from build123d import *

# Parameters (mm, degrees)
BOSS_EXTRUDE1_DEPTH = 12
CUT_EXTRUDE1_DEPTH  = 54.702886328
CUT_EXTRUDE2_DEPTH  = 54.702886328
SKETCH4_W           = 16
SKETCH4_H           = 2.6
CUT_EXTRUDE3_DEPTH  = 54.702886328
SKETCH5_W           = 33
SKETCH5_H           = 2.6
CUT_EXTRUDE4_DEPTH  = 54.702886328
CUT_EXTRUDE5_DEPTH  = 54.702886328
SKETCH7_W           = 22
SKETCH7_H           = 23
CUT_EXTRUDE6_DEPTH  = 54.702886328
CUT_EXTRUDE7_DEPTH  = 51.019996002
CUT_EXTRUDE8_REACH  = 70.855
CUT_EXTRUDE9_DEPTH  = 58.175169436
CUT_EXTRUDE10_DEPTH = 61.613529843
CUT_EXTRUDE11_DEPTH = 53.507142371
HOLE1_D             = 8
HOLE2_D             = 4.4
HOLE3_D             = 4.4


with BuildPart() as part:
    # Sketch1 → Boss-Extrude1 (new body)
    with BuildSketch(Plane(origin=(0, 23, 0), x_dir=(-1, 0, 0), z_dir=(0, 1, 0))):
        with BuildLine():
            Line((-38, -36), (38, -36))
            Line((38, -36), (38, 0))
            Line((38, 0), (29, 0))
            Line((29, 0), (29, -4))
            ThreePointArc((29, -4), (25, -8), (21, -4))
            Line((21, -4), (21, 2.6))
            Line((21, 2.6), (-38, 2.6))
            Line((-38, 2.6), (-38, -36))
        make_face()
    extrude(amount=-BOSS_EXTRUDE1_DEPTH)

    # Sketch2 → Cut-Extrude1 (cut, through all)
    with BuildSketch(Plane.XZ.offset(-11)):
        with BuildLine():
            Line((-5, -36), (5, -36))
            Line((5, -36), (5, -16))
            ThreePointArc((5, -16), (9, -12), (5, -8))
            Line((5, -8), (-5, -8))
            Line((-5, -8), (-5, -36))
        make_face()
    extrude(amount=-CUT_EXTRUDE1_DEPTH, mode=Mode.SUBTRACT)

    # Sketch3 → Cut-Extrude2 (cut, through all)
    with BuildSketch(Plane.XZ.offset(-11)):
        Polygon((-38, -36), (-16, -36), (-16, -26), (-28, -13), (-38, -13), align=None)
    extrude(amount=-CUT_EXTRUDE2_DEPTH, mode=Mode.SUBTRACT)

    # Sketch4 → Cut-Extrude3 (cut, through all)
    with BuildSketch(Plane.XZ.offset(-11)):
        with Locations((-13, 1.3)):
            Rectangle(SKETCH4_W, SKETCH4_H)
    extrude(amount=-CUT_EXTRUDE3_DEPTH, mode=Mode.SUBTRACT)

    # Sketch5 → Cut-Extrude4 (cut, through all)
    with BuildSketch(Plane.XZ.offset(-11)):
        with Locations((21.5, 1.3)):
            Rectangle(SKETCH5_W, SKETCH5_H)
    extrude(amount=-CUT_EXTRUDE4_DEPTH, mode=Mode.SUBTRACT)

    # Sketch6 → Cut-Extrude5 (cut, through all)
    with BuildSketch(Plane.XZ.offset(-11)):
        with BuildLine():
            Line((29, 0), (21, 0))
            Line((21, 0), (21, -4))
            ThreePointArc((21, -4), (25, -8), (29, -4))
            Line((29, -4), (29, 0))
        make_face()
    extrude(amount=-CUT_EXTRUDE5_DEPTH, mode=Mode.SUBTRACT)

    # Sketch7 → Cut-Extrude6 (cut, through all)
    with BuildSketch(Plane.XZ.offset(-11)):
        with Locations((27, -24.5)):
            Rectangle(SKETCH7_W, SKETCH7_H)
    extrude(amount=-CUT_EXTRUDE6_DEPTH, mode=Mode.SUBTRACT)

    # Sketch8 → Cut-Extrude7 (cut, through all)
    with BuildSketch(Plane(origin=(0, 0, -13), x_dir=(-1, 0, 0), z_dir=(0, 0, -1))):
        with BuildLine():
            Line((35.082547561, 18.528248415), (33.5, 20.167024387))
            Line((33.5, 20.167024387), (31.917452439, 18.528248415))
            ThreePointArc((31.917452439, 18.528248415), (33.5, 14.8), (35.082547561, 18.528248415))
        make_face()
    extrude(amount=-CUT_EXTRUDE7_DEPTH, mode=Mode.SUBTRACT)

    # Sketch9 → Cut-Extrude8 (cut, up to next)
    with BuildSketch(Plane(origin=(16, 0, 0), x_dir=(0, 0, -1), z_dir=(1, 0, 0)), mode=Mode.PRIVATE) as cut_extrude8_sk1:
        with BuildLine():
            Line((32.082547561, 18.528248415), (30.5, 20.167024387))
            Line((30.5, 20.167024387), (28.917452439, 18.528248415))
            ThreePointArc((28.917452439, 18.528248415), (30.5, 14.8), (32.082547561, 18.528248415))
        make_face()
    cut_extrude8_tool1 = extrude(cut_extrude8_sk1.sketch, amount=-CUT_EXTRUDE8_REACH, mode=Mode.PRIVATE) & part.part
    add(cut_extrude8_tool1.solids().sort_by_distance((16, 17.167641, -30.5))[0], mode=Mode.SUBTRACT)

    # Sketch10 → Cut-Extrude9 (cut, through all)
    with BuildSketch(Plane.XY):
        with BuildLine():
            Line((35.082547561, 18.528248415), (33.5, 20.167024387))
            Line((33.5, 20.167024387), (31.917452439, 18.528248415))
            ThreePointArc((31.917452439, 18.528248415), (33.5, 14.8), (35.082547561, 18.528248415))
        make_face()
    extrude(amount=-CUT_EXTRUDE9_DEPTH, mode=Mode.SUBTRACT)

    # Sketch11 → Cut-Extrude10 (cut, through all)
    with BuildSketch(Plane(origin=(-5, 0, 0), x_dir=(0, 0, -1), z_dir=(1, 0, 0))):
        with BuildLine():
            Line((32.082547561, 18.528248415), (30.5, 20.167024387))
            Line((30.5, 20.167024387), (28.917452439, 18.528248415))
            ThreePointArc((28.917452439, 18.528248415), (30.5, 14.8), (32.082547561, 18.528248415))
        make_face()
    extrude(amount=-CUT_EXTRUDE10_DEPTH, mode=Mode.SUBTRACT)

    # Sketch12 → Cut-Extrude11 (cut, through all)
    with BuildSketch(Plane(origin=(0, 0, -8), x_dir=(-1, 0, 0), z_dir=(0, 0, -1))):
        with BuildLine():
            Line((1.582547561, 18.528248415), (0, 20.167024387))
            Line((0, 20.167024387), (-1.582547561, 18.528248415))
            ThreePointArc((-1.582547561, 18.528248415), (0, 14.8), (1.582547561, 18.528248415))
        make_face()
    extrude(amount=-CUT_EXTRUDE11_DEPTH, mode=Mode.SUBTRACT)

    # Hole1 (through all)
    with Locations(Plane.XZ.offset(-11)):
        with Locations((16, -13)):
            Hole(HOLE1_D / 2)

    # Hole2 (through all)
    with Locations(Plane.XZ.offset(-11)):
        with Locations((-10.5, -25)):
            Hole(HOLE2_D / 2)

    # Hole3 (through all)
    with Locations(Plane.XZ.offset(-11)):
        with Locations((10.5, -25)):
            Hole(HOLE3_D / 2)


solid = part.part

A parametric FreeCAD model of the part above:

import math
import FreeCAD as App
import Part
import Sketcher

V = App.Vector
Q = App.Units.Quantity


def add_polygon(sketch, points):
    """Adds a closed chain of lines whose ends are joined by coincident constraints."""
    first, n = sketch.GeometryCount, len(points)
    for a, b in zip(points, points[1:] + points[:1]):
        sketch.addGeometry(Part.LineSegment(App.Vector(*a, 0), App.Vector(*b, 0)), False)
    for i in range(n):
        sketch.addConstraint(Sketcher.Constraint("Coincident", first + i, 2, first + (i + 1) % n, 1))

doc = App.newDocument("Part")
params = doc.addObject("Spreadsheet::Sheet", "Params")
for row, (alias, value) in enumerate([
    ("sketch1_radius", "4 mm"),
    ("sketch1_width", "76 mm"),
    ("sketch1_width2", "9 mm"),
    ("sketch1_height", "36 mm"),
    ("sketch1_height2", "4 mm"),
    ("pad1_length", "12 mm"),
    ("sketch2_radius", "4 mm"),
    ("sketch2_width", "10 mm"),
    ("sketch2_height", "20 mm"),
    ("sketch3_width", "22 mm"),
    ("sketch3_width2", "10 mm"),
    ("sketch3_height", "23 mm"),
    ("sketch4_width", "16 mm"),
    ("sketch4_height", "2.6 mm"),
    ("sketch5_width", "33 mm"),
    ("sketch5_height", "2.6 mm"),
    ("sketch6_radius", "4 mm"),
    ("sketch6_height", "4 mm"),
    ("sketch7_width", "22 mm"),
    ("sketch7_height", "23 mm"),
    ("sketch8_radius", "2.2 mm"),
    ("sketch9_radius", "2.2 mm"),
    ("sketch10_radius", "2.2 mm"),
    ("sketch11_radius", "2.2 mm"),
    ("sketch12_radius", "2.2 mm"),
    ("sketch13_diameter", "8 mm"),
    ("hole_diameter", "8 mm"),
    ("sketch14_diameter", "4.4 mm"),
    ("hole2_diameter", "4.4 mm"),
    ("sketch15_diameter", "4.4 mm"),
    ("hole3_diameter", "4.4 mm"),
], start=1):
    params.set(f"A{row}", alias)
    params.set(f"B{row}", "=" + value)
    params.setAlias(f"B{row}", alias)

body = doc.addObject("PartDesign::Body", "Body")

sketch1 = body.newObject("Sketcher::SketchObject", "Sketch")
sketch1.AttachmentSupport = (doc.getObject("XZ_Plane"), [""])
sketch1.MapMode = "FlatFace"
sketch1.AttachmentOffset = App.Placement(V(0, 0, -23), App.Rotation())
sketch1.addGeometry([
    Part.LineSegment(V(38, -36, 0), V(-38, -36, 0)),
    Part.LineSegment(V(-38, -36, 0), V(-38, 0, 0)),
    Part.LineSegment(V(-38, 0, 0), V(-29, 0, 0)),
    Part.LineSegment(V(-29, 0, 0), V(-29, -4, 0)),
    Part.ArcOfCircle(Part.Circle(V(-25, -4, 0), V(0, 0, 1), 4), math.radians(180), math.radians(360)),
    Part.LineSegment(V(-21, -4, 0), V(-21, 2.6, 0)),
    Part.LineSegment(V(-21, 2.6, 0), V(38, 2.6, 0)),
    Part.LineSegment(V(38, 2.6, 0), V(38, -36, 0)),
], False)
sketch1.addConstraint([
    Sketcher.Constraint("Coincident", 0, 2, 1, 1),
    Sketcher.Constraint("Coincident", 1, 2, 2, 1),
    Sketcher.Constraint("Coincident", 2, 2, 3, 1),
    Sketcher.Constraint("Tangent", 3, 2, 4, 1),
    Sketcher.Constraint("Tangent", 4, 2, 5, 1),
    Sketcher.Constraint("Coincident", 5, 2, 6, 1),
    Sketcher.Constraint("Coincident", 6, 2, 7, 1),
    Sketcher.Constraint("Coincident", 7, 2, 0, 1),
    Sketcher.Constraint("Horizontal", 0),
    Sketcher.Constraint("Vertical", 1),
    Sketcher.Constraint("Horizontal", 2),
    Sketcher.Constraint("Vertical", 3),
    Sketcher.Constraint("Vertical", 5),
    Sketcher.Constraint("Horizontal", 6),
    Sketcher.Constraint("Vertical", 7),
    Sketcher.Constraint("PointOnObject", 1, 2, -1),
    Sketcher.Constraint("Radius", 4, Q("4 mm")),
    Sketcher.Constraint("DistanceX", 0, 2, 0, 1, Q("76 mm")),
    Sketcher.Constraint("DistanceX", 2, 1, 2, 2, Q("9 mm")),
    Sketcher.Constraint("DistanceY", 1, 1, 1, 2, Q("36 mm")),
    Sketcher.Constraint("DistanceY", 3, 2, 3, 1, Q("4 mm")),
    Sketcher.Constraint("DistanceY", 5, 1, 5, 2, Q("6.6 mm")),
    Sketcher.Constraint("DistanceX", 4, 3, -1, 1, Q("25 mm")),
])
sketch1.setExpression("Constraints[16]", "Params.sketch1_radius")
sketch1.setExpression("Constraints[17]", "Params.sketch1_width")
sketch1.setExpression("Constraints[18]", "Params.sketch1_width2")
sketch1.setExpression("Constraints[19]", "Params.sketch1_height")
sketch1.setExpression("Constraints[20]", "Params.sketch1_height2")
pad1 = body.newObject("PartDesign::Pad", "Pad")
pad1.Profile = sketch1
pad1.setExpression("Length", "Params.pad1_length")

sketch2 = body.newObject("Sketcher::SketchObject", "Sketch001")
sketch2.AttachmentSupport = (doc.getObject("XZ_Plane"), [""])
sketch2.MapMode = "FlatFace"
sketch2.AttachmentOffset = App.Placement(V(0, 0, -11), App.Rotation())
sketch2.addGeometry([
    Part.LineSegment(V(-5, -36, 0), V(5, -36, 0)),
    Part.LineSegment(V(5, -36, 0), V(5, -16, 0)),
    Part.ArcOfCircle(Part.Circle(V(5, -12, 0), V(0, 0, 1), 4), math.radians(-90), math.radians(90)),
    Part.LineSegment(V(5, -8, 0), V(-5, -8, 0)),
    Part.LineSegment(V(-5, -8, 0), V(-5, -36, 0)),
], False)
sketch2.addConstraint([
    Sketcher.Constraint("Coincident", 0, 2, 1, 1),
    Sketcher.Constraint("Coincident", 1, 2, 2, 1),
    Sketcher.Constraint("Tangent", 2, 2, 3, 1),
    Sketcher.Constraint("Coincident", 3, 2, 4, 1),
    Sketcher.Constraint("Coincident", 4, 2, 0, 1),
    Sketcher.Constraint("Horizontal", 0),
    Sketcher.Constraint("Vertical", 1),
    Sketcher.Constraint("Horizontal", 3),
    Sketcher.Constraint("Vertical", 4),
    Sketcher.Constraint("Vertical", 2, 3, 0, 2),
    Sketcher.Constraint("Radius", 2, Q("4 mm")),
    Sketcher.Constraint("DistanceX", 0, 1, 0, 2, Q("10 mm")),
    Sketcher.Constraint("DistanceY", 1, 1, 1, 2, Q("20 mm")),
    Sketcher.Constraint("DistanceX", -1, 1, 2, 3, Q("5 mm")),
    Sketcher.Constraint("DistanceY", 2, 3, -1, 1, Q("12 mm")),
])
sketch2.setExpression("Constraints[10]", "Params.sketch2_radius")
sketch2.setExpression("Constraints[11]", "Params.sketch2_width")
sketch2.setExpression("Constraints[12]", "Params.sketch2_height")
pocket1 = body.newObject("PartDesign::Pocket", "Pocket")
pocket1.Profile = sketch2
pocket1.Type = "ThroughAll"

sketch3 = body.newObject("Sketcher::SketchObject", "Sketch002")
sketch3.AttachmentSupport = (doc.getObject("XZ_Plane"), [""])
sketch3.MapMode = "FlatFace"
sketch3.AttachmentOffset = App.Placement(V(0, 0, -11), App.Rotation())
add_polygon(sketch3, [(-38, -36), (-16, -36), (-16, -26), (-28, -13), (-38, -13)])
sketch3.addConstraint([
    Sketcher.Constraint("Horizontal", 0),
    Sketcher.Constraint("Vertical", 1),
    Sketcher.Constraint("Horizontal", 3),
    Sketcher.Constraint("Vertical", 4),
    Sketcher.Constraint("Equal", 3, 1),
    Sketcher.Constraint("DistanceX", 0, 1, 0, 2, Q("22 mm")),
    Sketcher.Constraint("DistanceX", 3, 2, 3, 1, Q("10 mm")),
    Sketcher.Constraint("DistanceY", 4, 2, 4, 1, Q("23 mm")),
    Sketcher.Constraint("DistanceX", 0, 2, -1, 1, Q("16 mm")),
    Sketcher.Constraint("DistanceY", 0, 2, -1, 1, Q("36 mm")),
])
sketch3.setExpression("Constraints[10]", "Params.sketch3_width")
sketch3.setExpression("Constraints[11]", "Params.sketch3_width2")
sketch3.setExpression("Constraints[12]", "Params.sketch3_height")
pocket2 = body.newObject("PartDesign::Pocket", "Pocket001")
pocket2.Profile = sketch3
pocket2.Type = "ThroughAll"

sketch4 = body.newObject("Sketcher::SketchObject", "Sketch003")
sketch4.AttachmentSupport = (doc.getObject("XZ_Plane"), [""])
sketch4.MapMode = "FlatFace"
sketch4.AttachmentOffset = App.Placement(V(0, 0, -11), App.Rotation())
add_polygon(sketch4, [(-21, 2.6), (-21, 0), (-5, 0), (-5, 2.6)])
sketch4.addConstraint([
    Sketcher.Constraint("Vertical", 0),
    Sketcher.Constraint("Horizontal", 1),
    Sketcher.Constraint("Vertical", 2),
    Sketcher.Constraint("Horizontal", 3),
    Sketcher.Constraint("PointOnObject", 0, 2, -1),
    Sketcher.Constraint("DistanceX", 1, 1, 1, 2, Q("16 mm")),
    Sketcher.Constraint("DistanceY", 0, 2, 0, 1, Q("2.6 mm")),
    Sketcher.Constraint("DistanceX", 0, 2, -1, 1, Q("21 mm")),
])
sketch4.setExpression("Constraints[9]", "Params.sketch4_width")
sketch4.setExpression("Constraints[10]", "Params.sketch4_height")
pocket3 = body.newObject("PartDesign::Pocket", "Pocket002")
pocket3.Profile = sketch4
pocket3.Type = "ThroughAll"

sketch5 = body.newObject("Sketcher::SketchObject", "Sketch004")
sketch5.AttachmentSupport = (doc.getObject("XZ_Plane"), [""])
sketch5.MapMode = "FlatFace"
sketch5.AttachmentOffset = App.Placement(V(0, 0, -11), App.Rotation())
add_polygon(sketch5, [(5, 2.6), (5, 0), (38, 0), (38, 2.6)])
sketch5.addConstraint([
    Sketcher.Constraint("Vertical", 0),
    Sketcher.Constraint("Horizontal", 1),
    Sketcher.Constraint("Vertical", 2),
    Sketcher.Constraint("Horizontal", 3),
    Sketcher.Constraint("PointOnObject", 0, 2, -1),
    Sketcher.Constraint("DistanceX", 1, 1, 1, 2, Q("33 mm")),
    Sketcher.Constraint("DistanceY", 0, 2, 0, 1, Q("2.6 mm")),
    Sketcher.Constraint("DistanceX", -1, 1, 0, 2, Q("5 mm")),
])
sketch5.setExpression("Constraints[9]", "Params.sketch5_width")
sketch5.setExpression("Constraints[10]", "Params.sketch5_height")
pocket4 = body.newObject("PartDesign::Pocket", "Pocket003")
pocket4.Profile = sketch5
pocket4.Type = "ThroughAll"

sketch6 = body.newObject("Sketcher::SketchObject", "Sketch005")
sketch6.AttachmentSupport = (doc.getObject("XZ_Plane"), [""])
sketch6.MapMode = "FlatFace"
sketch6.AttachmentOffset = App.Placement(V(0, 0, -11), App.Rotation())
sketch6.addGeometry([
    Part.LineSegment(V(29, 0, 0), V(21, 0, 0)),
    Part.LineSegment(V(21, 0, 0), V(21, -4, 0)),
    Part.ArcOfCircle(Part.Circle(V(25, -4, 0), V(0, 0, 1), 4), math.radians(180), math.radians(360)),
    Part.LineSegment(V(29, -4, 0), V(29, 0, 0)),
], False)
sketch6.addConstraint([
    Sketcher.Constraint("Coincident", 0, 2, 1, 1),
    Sketcher.Constraint("Tangent", 1, 2, 2, 1),
    Sketcher.Constraint("Tangent", 2, 2, 3, 1),
    Sketcher.Constraint("Coincident", 3, 2, 0, 1),
    Sketcher.Constraint("Horizontal", 0),
    Sketcher.Constraint("Vertical", 1),
    Sketcher.Constraint("Vertical", 3),
    Sketcher.Constraint("PointOnObject", 0, 2, -1),
    Sketcher.Constraint("Radius", 2, Q("4 mm")),
    Sketcher.Constraint("DistanceY", 1, 2, 1, 1, Q("4 mm")),
    Sketcher.Constraint("DistanceX", -1, 1, 2, 3, Q("25 mm")),
])
sketch6.setExpression("Constraints[8]", "Params.sketch6_radius")
sketch6.setExpression("Constraints[9]", "Params.sketch6_height")
pocket5 = body.newObject("PartDesign::Pocket", "Pocket004")
pocket5.Profile = sketch6
pocket5.Type = "ThroughAll"

sketch7 = body.newObject("Sketcher::SketchObject", "Sketch006")
sketch7.AttachmentSupport = (doc.getObject("XZ_Plane"), [""])
sketch7.MapMode = "FlatFace"
sketch7.AttachmentOffset = App.Placement(V(0, 0, -11), App.Rotation())
add_polygon(sketch7, [(16, -13), (16, -36), (38, -36), (38, -13)])
sketch7.addConstraint([
    Sketcher.Constraint("Vertical", 0),
    Sketcher.Constraint("Horizontal", 1),
    Sketcher.Constraint("Vertical", 2),
    Sketcher.Constraint("Horizontal", 3),
    Sketcher.Constraint("DistanceX", 1, 1, 1, 2, Q("22 mm")),
    Sketcher.Constraint("DistanceY", 0, 2, 0, 1, Q("23 mm")),
    Sketcher.Constraint("DistanceX", -1, 1, 0, 2, Q("16 mm")),
    Sketcher.Constraint("DistanceY", 0, 2, -1, 1, Q("36 mm")),
])
sketch7.setExpression("Constraints[8]", "Params.sketch7_width")
sketch7.setExpression("Constraints[9]", "Params.sketch7_height")
pocket6 = body.newObject("PartDesign::Pocket", "Pocket005")
pocket6.Profile = sketch7
pocket6.Type = "ThroughAll"

sketch8 = body.newObject("Sketcher::SketchObject", "Sketch007")
sketch8.AttachmentSupport = (doc.getObject("XY_Plane"), [""])
sketch8.MapMode = "FlatFace"
sketch8.AttachmentOffset = App.Placement(V(0, 0, -13), App.Rotation())
sketch8.addGeometry([
    Part.LineSegment(V(-35.082548, 18.528248, 0), V(-33.5, 20.167024, 0)),
    Part.LineSegment(V(-33.5, 20.167024, 0), V(-31.917452, 18.528248, 0)),
    Part.ArcOfCircle(Part.Circle(V(-33.5, 17, 0), V(0, 0, 1), 2.2), math.radians(136), math.radians(404)),
], False)
sketch8.addConstraint([
    Sketcher.Constraint("Coincident", 0, 2, 1, 1),
    Sketcher.Constraint("Tangent", 1, 2, 2, 2),
    Sketcher.Constraint("Tangent", 2, 1, 0, 1),
    Sketcher.Constraint("Horizontal", 1, 2, 2, 1),
    Sketcher.Constraint("Radius", 2, Q("2.2 mm")),
    Sketcher.Constraint("Angle", 0, Q("46 deg")),
    Sketcher.Constraint("DistanceY", -1, 1, 2, 3, Q("17 mm")),
    Sketcher.Constraint("DistanceX", 2, 3, -1, 1, Q("33.5 mm")),
])
sketch8.setExpression("Constraints[4]", "Params.sketch8_radius")
pocket7 = body.newObject("PartDesign::Pocket", "Pocket006")
pocket7.Profile = sketch8
pocket7.Type = "ThroughAll"
pocket7.Reversed = True

sketch9 = body.newObject("Sketcher::SketchObject", "Sketch008")
sketch9.AttachmentSupport = (doc.getObject("YZ_Plane"), [""])
sketch9.MapMode = "FlatFace"
sketch9.AttachmentOffset = App.Placement(V(0, 0, 16), App.Rotation())
sketch9.addGeometry([
    Part.LineSegment(V(18.528248, -32.082548, 0), V(20.167024, -30.5, 0)),
    Part.LineSegment(V(20.167024, -30.5, 0), V(18.528248, -28.917452, 0)),
    Part.ArcOfCircle(Part.Circle(V(17, -30.5, 0), V(0, 0, 1), 2.2), math.radians(46), math.radians(314)),
], False)
sketch9.addConstraint([
    Sketcher.Constraint("Coincident", 0, 2, 1, 1),
    Sketcher.Constraint("Tangent", 1, 2, 2, 1),
    Sketcher.Constraint("Tangent", 2, 2, 0, 1),
    Sketcher.Constraint("Horizontal", 2, 3, 0, 2),
    Sketcher.Constraint("Radius", 2, Q("2.2 mm")),
    Sketcher.Constraint("Angle", 0, Q("44 deg")),
    Sketcher.Constraint("DistanceX", -1, 1, 2, 3, Q("17 mm")),
    Sketcher.Constraint("DistanceY", 2, 3, -1, 1, Q("30.5 mm")),
])
sketch9.setExpression("Constraints[4]", "Params.sketch9_radius")
pocket8 = body.newObject("PartDesign::Pocket", "Pocket007")
pocket8.Profile = sketch9
pocket8.Type = "UpToFirst"

sketch10 = body.newObject("Sketcher::SketchObject", "Sketch009")
sketch10.AttachmentSupport = (doc.getObject("XY_Plane"), [""])
sketch10.MapMode = "FlatFace"
sketch10.addGeometry([
    Part.LineSegment(V(35.082548, 18.528248, 0), V(33.5, 20.167024, 0)),
    Part.LineSegment(V(33.5, 20.167024, 0), V(31.917452, 18.528248, 0)),
    Part.ArcOfCircle(Part.Circle(V(33.5, 17, 0), V(0, 0, 1), 2.2), math.radians(136), math.radians(404)),
], False)
sketch10.addConstraint([
    Sketcher.Constraint("Coincident", 0, 2, 1, 1),
    Sketcher.Constraint("Tangent", 1, 2, 2, 1),
    Sketcher.Constraint("Tangent", 2, 2, 0, 1),
    Sketcher.Constraint("Horizontal", 1, 2, 2, 2),
    Sketcher.Constraint("Radius", 2, Q("2.2 mm")),
    Sketcher.Constraint("Angle", 0, Q("134 deg")),
    Sketcher.Constraint("DistanceY", -1, 1, 2, 3, Q("17 mm")),
    Sketcher.Constraint("DistanceX", -1, 1, 2, 3, Q("33.5 mm")),
])
sketch10.setExpression("Constraints[4]", "Params.sketch10_radius")
pocket9 = body.newObject("PartDesign::Pocket", "Pocket008")
pocket9.Profile = sketch10
pocket9.Type = "ThroughAll"

sketch11 = body.newObject("Sketcher::SketchObject", "Sketch010")
sketch11.AttachmentSupport = (doc.getObject("YZ_Plane"), [""])
sketch11.MapMode = "FlatFace"
sketch11.AttachmentOffset = App.Placement(V(0, 0, -5), App.Rotation())
sketch11.addGeometry([
    Part.LineSegment(V(18.528248, -32.082548, 0), V(20.167024, -30.5, 0)),
    Part.LineSegment(V(20.167024, -30.5, 0), V(18.528248, -28.917452, 0)),
    Part.ArcOfCircle(Part.Circle(V(17, -30.5, 0), V(0, 0, 1), 2.2), math.radians(46), math.radians(314)),
], False)
sketch11.addConstraint([
    Sketcher.Constraint("Coincident", 0, 2, 1, 1),
    Sketcher.Constraint("Tangent", 1, 2, 2, 1),
    Sketcher.Constraint("Tangent", 2, 2, 0, 1),
    Sketcher.Constraint("Horizontal", 2, 3, 0, 2),
    Sketcher.Constraint("Radius", 2, Q("2.2 mm")),
    Sketcher.Constraint("Angle", 0, Q("44 deg")),
    Sketcher.Constraint("DistanceX", -1, 1, 2, 3, Q("17 mm")),
    Sketcher.Constraint("DistanceY", 2, 3, -1, 1, Q("30.5 mm")),
])
sketch11.setExpression("Constraints[4]", "Params.sketch11_radius")
pocket10 = body.newObject("PartDesign::Pocket", "Pocket009")
pocket10.Profile = sketch11
pocket10.Type = "ThroughAll"

sketch12 = body.newObject("Sketcher::SketchObject", "Sketch011")
sketch12.AttachmentSupport = (doc.getObject("XY_Plane"), [""])
sketch12.MapMode = "FlatFace"
sketch12.AttachmentOffset = App.Placement(V(0, 0, -8), App.Rotation())
sketch12.addGeometry([
    Part.LineSegment(V(-1.582548, 18.528248, 0), V(0, 20.167024, 0)),
    Part.LineSegment(V(0, 20.167024, 0), V(1.582548, 18.528248, 0)),
    Part.ArcOfCircle(Part.Circle(V(0, 17, 0), V(0, 0, 1), 2.2), math.radians(136), math.radians(404)),
], False)
sketch12.addConstraint([
    Sketcher.Constraint("Coincident", 0, 2, 1, 1),
    Sketcher.Constraint("Tangent", 1, 2, 2, 2),
    Sketcher.Constraint("Tangent", 2, 1, 0, 1),
    Sketcher.Constraint("Symmetric", 1, 2, 2, 1, -2),
    Sketcher.Constraint("Radius", 2, Q("2.2 mm")),
    Sketcher.Constraint("Angle", 0, Q("46 deg")),
    Sketcher.Constraint("DistanceY", -1, 1, 2, 3, Q("17 mm")),
])
sketch12.setExpression("Constraints[4]", "Params.sketch12_radius")
pocket11 = body.newObject("PartDesign::Pocket", "Pocket010")
pocket11.Profile = sketch12
pocket11.Type = "ThroughAll"
pocket11.Reversed = True

sketch13 = body.newObject("Sketcher::SketchObject", "Sketch012")
sketch13.AttachmentSupport = (doc.getObject("XZ_Plane"), [""])
sketch13.MapMode = "FlatFace"
sketch13.AttachmentOffset = App.Placement(V(0, 0, -11), App.Rotation())
sketch13.addGeometry(Part.Circle(V(16, -13, 0), V(0, 0, 1), 4), False)
sketch13.addConstraint([
    Sketcher.Constraint("Diameter", 0, Q("8 mm")),
    Sketcher.Constraint("DistanceX", -1, 1, 0, 3, Q("16 mm")),
    Sketcher.Constraint("DistanceY", 0, 3, -1, 1, Q("13 mm")),
])
sketch13.setExpression("Constraints[0]", "Params.sketch13_diameter")
doc.recompute()
hole = body.newObject("PartDesign::Hole", "Hole")
hole.Profile = sketch13
hole.ThreadType = "None"
hole.setExpression("Diameter", "Params.hole_diameter")
hole.DepthType = "ThroughAll"

sketch14 = body.newObject("Sketcher::SketchObject", "Sketch013")
sketch14.AttachmentSupport = (doc.getObject("XZ_Plane"), [""])
sketch14.MapMode = "FlatFace"
sketch14.AttachmentOffset = App.Placement(V(0, 0, -11), App.Rotation())
sketch14.addGeometry(Part.Circle(V(-10.5, -25, 0), V(0, 0, 1), 2.2), False)
sketch14.addConstraint([
    Sketcher.Constraint("Diameter", 0, Q("4.4 mm")),
    Sketcher.Constraint("DistanceY", 0, 3, -1, 1, Q("25 mm")),
    Sketcher.Constraint("DistanceX", 0, 3, -1, 1, Q("10.5 mm")),
])
sketch14.setExpression("Constraints[0]", "Params.sketch14_diameter")
doc.recompute()
hole2 = body.newObject("PartDesign::Hole", "Hole001")
hole2.Profile = sketch14
hole2.ThreadType = "None"
hole2.setExpression("Diameter", "Params.hole2_diameter")
hole2.DepthType = "ThroughAll"

sketch15 = body.newObject("Sketcher::SketchObject", "Sketch014")
sketch15.AttachmentSupport = (doc.getObject("XZ_Plane"), [""])
sketch15.MapMode = "FlatFace"
sketch15.AttachmentOffset = App.Placement(V(0, 0, -11), App.Rotation())
sketch15.addGeometry(Part.Circle(V(10.5, -25, 0), V(0, 0, 1), 2.2), False)
sketch15.addConstraint([
    Sketcher.Constraint("Diameter", 0, Q("4.4 mm")),
    Sketcher.Constraint("DistanceY", 0, 3, -1, 1, Q("25 mm")),
    Sketcher.Constraint("DistanceX", -1, 1, 0, 3, Q("10.5 mm")),
])
sketch15.setExpression("Constraints[0]", "Params.sketch15_diameter")
doc.recompute()
hole3 = body.newObject("PartDesign::Hole", "Hole002")
hole3.Profile = sketch15
hole3.ThreadType = "None"
hole3.setExpression("Diameter", "Params.hole3_diameter")
hole3.DepthType = "ThroughAll"

doc.recompute()
